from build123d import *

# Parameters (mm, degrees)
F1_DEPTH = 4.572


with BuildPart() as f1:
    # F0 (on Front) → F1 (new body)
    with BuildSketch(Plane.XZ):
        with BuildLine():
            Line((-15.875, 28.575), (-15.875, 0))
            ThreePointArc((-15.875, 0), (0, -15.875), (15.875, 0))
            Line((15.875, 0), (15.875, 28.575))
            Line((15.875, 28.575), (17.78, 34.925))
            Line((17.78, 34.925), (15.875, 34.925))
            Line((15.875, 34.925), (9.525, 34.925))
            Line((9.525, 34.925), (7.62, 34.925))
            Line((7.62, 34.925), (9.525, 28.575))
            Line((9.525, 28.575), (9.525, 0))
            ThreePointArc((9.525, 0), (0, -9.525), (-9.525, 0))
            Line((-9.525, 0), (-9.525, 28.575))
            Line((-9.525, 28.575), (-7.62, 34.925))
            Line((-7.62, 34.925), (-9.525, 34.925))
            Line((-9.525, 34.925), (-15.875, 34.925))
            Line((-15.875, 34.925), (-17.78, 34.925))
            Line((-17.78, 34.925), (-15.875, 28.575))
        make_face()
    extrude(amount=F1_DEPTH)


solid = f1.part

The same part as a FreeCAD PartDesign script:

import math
import FreeCAD as App
import Part
import Sketcher

V = App.Vector
Q = App.Units.Quantity

doc = App.newDocument("Part")
body = doc.addObject("PartDesign::Body", "Body")

sketch1 = doc.addObject("Sketcher::SketchObject", "Sketch")
body.addObject(sketch1)
sketch1.AttachmentSupport = (doc.XZ_Plane, [""])
sketch1.MapMode = "FlatFace"
sketch1.addGeometry([
    Part.LineSegment(V(-16, 29, 0), V(-16, 0, 0)),
    Part.ArcOfCircle(Part.Circle(V(0, 0, 0), V(0, 0, 1), 16), math.radians(180), math.radians(360)),
    Part.LineSegment(V(16, 0, 0), V(16, 29, 0)),
    Part.LineSegment(V(16, 29, 0), V(18, 35, 0)),
    Part.LineSegment(V(18, 35, 0), V(8, 35, 0)),
    Part.LineSegment(V(8, 35, 0), V(10, 29, 0)),
    Part.LineSegment(V(10, 29, 0), V(10, 0, 0)),
    Part.ArcOfCircle(Part.Circle(V(0, 0, 0), V(0, 0, 1), 10), math.radians(180), math.radians(360)),
    Part.LineSegment(V(-10, 0, 0), V(-10, 29, 0)),
    Part.LineSegment(V(-10, 29, 0), V(-8, 35, 0)),
    Part.LineSegment(V(-8, 35, 0), V(-18, 35, 0)),
    Part.LineSegment(V(-18, 35, 0), V(-16, 29, 0)),
], False)
sketch1.addConstraint([
    Sketcher.Constraint("Tangent", 0, 2, 1, 1),
    Sketcher.Constraint("Tangent", 1, 2, 2, 1),
    Sketcher.Constraint("Coincident", 2, 2, 3, 1),
    Sketcher.Constraint("Coincident", 3, 2, 4, 1),
    Sketcher.Constraint("Coincident", 4, 2, 5, 1),
    Sketcher.Constraint("Coincident", 5, 2, 6, 1),
    Sketcher.Constraint("Tangent", 6, 2, 7, 2),
    Sketcher.Constraint("Tangent", 7, 1, 8, 1),
    Sketcher.Constraint("Coincident", 8, 2, 9, 1),
    Sketcher.Constraint("Coincident", 9, 2, 10, 1),
    Sketcher.Constraint("Coincident", 10, 2, 11, 1),
    Sketcher.Constraint("Coincident", 11, 2, 0, 1),
    Sketcher.Constraint("Vertical", 0),
    Sketcher.Constraint("Vertical", 2),
    Sketcher.Constraint("Horizontal", 4),
    Sketcher.Constraint("Vertical", 6),
    Sketcher.Constraint("Vertical", 8),
    Sketcher.Constraint("Horizontal", 10),
    Sketcher.Constraint("Coincident", 1, 3, -1, 1),
    Sketcher.Constraint("Coincident", 7, 3, -1, 1),
    Sketcher.Constraint("Symmetric", 4, 2, 9, 2, -2),
    Sketcher.Constraint("Parallel", 3, 9),
    Sketcher.Constraint("Parallel", 5, 11),
    Sketcher.Constraint("Horizontal", 2, 2, 5, 2),
    Sketcher.Constraint("Horizontal", 5, 2, 8, 2),
    Sketcher.Constraint("Horizontal", 8, 2, 11, 2),
    Sketcher.Constraint("DistanceX", 4, 2, 4, 1, Q("0.4 in")),
    Sketcher.Constraint("Radius", 1, Q("0.625 in")),
    Sketcher.Constraint("Radius", 7, Q("0.375 in")),
    Sketcher.Constraint("DistanceY", 0, 2, 0, 1, Q("1.125 in")),
    Sketcher.Constraint("DistanceY", 2, 2, 3, 2, Q("0.25 in")),
])
pad1 = doc.addObject("PartDesign::Pad", "Pad")
body.addObject(pad1)
pad1.Profile = sketch1
pad1.Length = Q("0.18 in")

doc.recompute()
